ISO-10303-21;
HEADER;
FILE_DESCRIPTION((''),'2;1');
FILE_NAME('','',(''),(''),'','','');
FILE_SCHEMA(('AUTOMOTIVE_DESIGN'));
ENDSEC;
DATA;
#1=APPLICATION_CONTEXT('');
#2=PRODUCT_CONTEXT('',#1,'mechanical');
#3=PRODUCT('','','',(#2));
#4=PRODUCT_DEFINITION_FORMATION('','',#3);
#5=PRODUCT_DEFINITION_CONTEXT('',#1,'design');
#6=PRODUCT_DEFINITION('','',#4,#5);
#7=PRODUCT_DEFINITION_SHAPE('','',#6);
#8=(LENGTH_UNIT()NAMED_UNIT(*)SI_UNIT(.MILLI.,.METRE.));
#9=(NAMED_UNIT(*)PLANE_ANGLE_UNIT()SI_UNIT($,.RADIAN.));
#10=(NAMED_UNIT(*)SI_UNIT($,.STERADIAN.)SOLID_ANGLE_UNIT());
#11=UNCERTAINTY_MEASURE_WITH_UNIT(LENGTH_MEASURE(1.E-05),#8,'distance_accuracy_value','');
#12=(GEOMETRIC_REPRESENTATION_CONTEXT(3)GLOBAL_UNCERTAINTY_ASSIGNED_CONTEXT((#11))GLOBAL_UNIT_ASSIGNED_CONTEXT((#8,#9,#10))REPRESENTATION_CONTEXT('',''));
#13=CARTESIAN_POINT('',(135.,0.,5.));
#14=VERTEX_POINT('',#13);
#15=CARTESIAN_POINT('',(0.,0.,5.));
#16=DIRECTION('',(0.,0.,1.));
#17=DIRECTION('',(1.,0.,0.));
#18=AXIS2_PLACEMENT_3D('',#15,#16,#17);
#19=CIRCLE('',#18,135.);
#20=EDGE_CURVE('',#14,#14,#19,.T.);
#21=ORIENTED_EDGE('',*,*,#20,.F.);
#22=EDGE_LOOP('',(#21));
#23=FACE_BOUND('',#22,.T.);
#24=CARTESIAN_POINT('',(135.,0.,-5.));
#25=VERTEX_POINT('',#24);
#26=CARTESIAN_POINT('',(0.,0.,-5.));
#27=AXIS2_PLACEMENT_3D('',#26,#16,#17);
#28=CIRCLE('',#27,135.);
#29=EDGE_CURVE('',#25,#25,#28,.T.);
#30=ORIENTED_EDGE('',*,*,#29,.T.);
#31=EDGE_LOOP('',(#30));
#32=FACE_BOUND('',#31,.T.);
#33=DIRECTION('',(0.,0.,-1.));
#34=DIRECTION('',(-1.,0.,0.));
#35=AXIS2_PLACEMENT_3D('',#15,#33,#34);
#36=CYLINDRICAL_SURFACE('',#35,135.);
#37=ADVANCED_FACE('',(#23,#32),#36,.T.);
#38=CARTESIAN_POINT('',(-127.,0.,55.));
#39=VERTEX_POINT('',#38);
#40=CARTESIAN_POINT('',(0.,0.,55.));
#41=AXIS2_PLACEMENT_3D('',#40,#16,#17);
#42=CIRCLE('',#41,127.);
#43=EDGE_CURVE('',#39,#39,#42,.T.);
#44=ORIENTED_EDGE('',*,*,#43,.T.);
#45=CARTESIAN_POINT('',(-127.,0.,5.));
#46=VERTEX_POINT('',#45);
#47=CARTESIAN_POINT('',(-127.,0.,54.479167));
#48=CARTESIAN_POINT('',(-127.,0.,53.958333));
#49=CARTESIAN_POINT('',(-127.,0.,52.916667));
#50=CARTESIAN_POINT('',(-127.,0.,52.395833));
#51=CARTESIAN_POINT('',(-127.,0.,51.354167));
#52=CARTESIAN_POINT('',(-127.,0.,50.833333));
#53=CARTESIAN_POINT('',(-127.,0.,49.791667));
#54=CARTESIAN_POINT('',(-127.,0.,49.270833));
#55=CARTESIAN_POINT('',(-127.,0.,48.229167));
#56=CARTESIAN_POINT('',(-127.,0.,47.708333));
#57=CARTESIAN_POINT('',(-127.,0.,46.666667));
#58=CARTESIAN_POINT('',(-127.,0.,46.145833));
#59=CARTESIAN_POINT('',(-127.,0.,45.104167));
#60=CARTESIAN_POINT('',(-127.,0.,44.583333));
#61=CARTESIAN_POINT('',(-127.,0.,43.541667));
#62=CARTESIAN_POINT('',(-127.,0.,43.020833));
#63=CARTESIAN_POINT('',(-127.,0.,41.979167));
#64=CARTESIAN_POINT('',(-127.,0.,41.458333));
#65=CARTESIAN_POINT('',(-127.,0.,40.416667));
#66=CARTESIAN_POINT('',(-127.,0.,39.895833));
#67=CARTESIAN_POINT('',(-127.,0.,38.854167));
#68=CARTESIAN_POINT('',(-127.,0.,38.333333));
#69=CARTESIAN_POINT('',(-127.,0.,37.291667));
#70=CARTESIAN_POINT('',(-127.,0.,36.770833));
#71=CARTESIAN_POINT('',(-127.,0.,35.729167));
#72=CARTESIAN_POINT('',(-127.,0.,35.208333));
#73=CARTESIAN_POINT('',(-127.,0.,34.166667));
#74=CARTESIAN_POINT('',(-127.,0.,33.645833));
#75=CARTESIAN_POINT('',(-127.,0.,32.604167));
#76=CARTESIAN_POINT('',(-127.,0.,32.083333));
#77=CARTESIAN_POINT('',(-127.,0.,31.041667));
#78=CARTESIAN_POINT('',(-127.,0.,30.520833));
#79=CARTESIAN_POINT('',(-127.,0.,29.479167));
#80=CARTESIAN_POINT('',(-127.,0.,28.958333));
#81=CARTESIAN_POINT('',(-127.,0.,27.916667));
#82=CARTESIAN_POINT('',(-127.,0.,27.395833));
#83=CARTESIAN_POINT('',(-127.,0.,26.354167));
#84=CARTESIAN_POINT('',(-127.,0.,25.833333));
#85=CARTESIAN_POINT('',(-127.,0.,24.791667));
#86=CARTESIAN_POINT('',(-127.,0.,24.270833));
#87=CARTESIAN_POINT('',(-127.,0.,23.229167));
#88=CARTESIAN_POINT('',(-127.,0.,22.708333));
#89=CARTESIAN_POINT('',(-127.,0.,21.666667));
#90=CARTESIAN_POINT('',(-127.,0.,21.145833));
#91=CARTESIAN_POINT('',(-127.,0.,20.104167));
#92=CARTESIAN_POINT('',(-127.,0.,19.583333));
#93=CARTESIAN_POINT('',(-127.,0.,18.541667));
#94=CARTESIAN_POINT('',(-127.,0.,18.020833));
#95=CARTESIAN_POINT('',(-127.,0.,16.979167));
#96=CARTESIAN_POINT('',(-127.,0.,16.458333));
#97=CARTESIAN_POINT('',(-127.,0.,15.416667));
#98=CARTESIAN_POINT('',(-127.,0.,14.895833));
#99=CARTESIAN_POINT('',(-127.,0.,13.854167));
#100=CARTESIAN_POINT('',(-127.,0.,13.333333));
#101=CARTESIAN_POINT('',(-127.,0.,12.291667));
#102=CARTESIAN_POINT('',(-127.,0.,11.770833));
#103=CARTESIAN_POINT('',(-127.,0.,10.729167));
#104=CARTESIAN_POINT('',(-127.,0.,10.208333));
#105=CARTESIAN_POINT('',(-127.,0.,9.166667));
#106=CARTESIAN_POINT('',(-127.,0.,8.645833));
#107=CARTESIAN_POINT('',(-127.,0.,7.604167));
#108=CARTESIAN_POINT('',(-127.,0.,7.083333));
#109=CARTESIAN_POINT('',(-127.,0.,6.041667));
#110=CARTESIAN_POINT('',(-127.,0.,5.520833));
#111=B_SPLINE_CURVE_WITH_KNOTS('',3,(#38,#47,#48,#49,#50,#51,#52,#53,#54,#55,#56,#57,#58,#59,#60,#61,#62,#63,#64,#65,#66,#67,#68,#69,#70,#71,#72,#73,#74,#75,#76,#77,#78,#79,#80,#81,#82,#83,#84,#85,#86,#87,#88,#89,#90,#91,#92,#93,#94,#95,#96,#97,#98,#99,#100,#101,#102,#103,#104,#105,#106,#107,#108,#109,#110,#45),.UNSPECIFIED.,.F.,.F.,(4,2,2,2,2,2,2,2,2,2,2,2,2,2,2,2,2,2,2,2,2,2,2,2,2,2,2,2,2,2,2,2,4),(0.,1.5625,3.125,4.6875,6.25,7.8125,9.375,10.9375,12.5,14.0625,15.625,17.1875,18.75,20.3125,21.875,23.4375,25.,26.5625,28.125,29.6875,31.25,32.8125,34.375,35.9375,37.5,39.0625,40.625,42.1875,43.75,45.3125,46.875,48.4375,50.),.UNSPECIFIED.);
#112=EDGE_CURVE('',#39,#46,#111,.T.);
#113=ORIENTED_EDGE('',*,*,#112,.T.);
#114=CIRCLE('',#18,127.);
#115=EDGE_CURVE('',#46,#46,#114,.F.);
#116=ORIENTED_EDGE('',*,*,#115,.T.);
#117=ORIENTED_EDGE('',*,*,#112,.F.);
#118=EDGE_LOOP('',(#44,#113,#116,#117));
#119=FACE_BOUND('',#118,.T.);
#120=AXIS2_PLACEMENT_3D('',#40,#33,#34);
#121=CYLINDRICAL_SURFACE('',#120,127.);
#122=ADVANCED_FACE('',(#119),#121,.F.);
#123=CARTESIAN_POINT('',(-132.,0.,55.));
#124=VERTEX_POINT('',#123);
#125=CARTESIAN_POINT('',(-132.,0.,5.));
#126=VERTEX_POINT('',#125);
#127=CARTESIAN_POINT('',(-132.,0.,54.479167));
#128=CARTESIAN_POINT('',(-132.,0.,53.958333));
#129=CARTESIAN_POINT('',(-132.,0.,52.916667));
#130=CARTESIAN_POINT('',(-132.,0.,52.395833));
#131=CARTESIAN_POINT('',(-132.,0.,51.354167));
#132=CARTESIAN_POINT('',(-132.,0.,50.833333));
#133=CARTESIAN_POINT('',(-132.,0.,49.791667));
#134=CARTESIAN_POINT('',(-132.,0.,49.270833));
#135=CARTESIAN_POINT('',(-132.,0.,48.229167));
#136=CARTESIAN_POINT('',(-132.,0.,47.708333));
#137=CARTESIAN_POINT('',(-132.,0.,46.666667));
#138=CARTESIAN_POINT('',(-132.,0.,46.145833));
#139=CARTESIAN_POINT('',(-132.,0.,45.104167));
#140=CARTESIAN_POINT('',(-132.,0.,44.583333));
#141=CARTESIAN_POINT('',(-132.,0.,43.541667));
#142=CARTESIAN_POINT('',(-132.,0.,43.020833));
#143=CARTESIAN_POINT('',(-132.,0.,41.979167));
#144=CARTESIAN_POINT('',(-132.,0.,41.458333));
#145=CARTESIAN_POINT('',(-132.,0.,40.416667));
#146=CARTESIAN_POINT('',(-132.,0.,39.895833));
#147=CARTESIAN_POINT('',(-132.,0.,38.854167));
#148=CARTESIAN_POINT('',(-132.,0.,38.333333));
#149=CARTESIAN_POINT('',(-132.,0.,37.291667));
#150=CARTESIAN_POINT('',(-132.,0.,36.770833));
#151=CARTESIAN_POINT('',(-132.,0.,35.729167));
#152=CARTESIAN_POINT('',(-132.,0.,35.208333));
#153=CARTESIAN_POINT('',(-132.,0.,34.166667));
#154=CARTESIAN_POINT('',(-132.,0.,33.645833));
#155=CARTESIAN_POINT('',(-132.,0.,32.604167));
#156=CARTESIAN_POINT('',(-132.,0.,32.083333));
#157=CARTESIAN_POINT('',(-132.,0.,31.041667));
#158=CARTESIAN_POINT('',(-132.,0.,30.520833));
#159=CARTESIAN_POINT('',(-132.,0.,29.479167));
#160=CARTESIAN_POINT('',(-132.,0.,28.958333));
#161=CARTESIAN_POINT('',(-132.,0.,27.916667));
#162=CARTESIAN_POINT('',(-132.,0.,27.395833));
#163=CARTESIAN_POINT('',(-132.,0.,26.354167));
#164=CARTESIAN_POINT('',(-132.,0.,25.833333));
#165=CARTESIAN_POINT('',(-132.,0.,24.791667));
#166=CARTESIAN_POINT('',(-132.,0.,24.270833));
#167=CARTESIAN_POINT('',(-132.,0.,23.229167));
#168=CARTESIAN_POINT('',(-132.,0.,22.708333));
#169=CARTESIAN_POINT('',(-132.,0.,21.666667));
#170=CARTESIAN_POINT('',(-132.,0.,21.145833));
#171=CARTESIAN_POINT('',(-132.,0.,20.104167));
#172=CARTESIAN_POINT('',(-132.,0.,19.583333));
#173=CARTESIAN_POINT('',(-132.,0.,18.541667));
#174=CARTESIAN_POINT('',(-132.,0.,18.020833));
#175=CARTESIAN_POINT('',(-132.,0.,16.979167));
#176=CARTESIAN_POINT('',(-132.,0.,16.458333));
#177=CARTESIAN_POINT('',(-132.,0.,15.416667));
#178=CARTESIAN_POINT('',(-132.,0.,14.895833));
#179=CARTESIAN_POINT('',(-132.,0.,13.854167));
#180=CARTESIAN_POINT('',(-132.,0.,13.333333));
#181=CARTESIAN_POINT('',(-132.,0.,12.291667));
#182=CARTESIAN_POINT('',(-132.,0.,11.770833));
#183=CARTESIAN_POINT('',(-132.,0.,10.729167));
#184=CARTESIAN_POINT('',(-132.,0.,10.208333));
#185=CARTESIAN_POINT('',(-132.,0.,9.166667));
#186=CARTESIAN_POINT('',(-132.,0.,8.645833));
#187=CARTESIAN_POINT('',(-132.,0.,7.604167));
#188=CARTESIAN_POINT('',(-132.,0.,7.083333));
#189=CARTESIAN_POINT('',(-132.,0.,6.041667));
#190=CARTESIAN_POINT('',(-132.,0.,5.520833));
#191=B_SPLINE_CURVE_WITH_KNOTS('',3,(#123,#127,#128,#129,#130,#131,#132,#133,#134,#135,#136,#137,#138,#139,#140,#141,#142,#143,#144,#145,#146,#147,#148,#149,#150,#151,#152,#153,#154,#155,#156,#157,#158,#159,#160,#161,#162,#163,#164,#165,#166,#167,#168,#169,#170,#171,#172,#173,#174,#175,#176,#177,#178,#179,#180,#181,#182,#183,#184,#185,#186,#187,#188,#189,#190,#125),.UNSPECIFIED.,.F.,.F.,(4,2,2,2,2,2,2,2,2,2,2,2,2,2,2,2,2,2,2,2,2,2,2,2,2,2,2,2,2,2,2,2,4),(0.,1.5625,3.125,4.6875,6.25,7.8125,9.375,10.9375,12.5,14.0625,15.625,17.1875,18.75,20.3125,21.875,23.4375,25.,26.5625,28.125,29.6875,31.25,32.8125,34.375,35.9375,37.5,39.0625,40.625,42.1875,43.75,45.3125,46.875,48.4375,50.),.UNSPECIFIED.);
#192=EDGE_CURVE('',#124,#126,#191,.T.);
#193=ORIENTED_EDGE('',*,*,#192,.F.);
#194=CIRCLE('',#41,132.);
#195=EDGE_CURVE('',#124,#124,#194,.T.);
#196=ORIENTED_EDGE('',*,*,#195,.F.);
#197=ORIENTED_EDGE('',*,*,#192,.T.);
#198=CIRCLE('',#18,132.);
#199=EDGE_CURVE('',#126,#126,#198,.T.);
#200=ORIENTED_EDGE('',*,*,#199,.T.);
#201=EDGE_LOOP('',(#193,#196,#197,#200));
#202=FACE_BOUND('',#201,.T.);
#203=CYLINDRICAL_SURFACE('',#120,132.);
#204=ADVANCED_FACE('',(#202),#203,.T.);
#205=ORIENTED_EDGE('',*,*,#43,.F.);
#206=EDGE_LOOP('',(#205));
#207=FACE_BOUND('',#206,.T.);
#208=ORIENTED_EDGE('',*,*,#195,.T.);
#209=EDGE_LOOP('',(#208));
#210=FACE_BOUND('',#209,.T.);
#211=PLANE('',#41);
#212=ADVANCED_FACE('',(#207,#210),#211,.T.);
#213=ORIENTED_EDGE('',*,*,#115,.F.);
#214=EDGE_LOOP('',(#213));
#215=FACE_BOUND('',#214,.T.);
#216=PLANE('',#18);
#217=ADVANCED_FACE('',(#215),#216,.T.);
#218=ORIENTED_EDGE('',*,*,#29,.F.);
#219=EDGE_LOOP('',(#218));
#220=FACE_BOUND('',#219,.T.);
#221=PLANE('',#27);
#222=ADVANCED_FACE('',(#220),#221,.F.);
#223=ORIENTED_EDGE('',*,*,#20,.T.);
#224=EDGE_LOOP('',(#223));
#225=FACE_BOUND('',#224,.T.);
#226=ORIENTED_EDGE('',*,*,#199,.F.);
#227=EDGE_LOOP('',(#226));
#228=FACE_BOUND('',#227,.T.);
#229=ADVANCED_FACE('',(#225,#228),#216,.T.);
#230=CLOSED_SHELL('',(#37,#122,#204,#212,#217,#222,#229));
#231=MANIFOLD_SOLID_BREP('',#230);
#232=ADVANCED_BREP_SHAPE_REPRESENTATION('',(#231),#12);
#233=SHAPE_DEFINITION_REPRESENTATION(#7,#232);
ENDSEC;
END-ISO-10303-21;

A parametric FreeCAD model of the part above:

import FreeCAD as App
import Part
import Sketcher

V = App.Vector
Q = App.Units.Quantity

doc = App.newDocument("Part")
params = doc.addObject("Spreadsheet::Sheet", "Params")
for row, (alias, value) in enumerate([
    ("sketch1_diameter", "270 mm"),
    ("pad1_length", "10 mm"),
    ("sketch2_diameter", "264 mm"),
    ("sketch2_diameter2", "254 mm"),
    ("pad2_length", "50 mm"),
], start=1):
    params.set(f"A{row}", alias)
    params.set(f"B{row}", "=" + value)
    params.setAlias(f"B{row}", alias)

body = doc.addObject("PartDesign::Body", "Body")

# Sketch on XY plane
sketch1 = body.newObject("Sketcher::SketchObject", "Sketch")
sketch1.AttachmentSupport = (doc.getObject("XY_Plane"), [""])
sketch1.MapMode = "FlatFace"
sketch1.addGeometry(Part.Circle(V(0, 0, 0), V(0, 0, 1), 135), False)
sketch1.addConstraint([
    Sketcher.Constraint("Coincident", 0, 3, -1, 1),
    Sketcher.Constraint("Diameter", 0, Q("270 mm")),
])
sketch1.setExpression("Constraints[1]", "Params.sketch1_diameter")
pad1 = body.newObject("PartDesign::Pad", "Pad")
pad1.Profile = sketch1
pad1.setExpression("Length", "Params.pad1_length")
pad1.Midplane = True

# Sketch on XY plane
sketch2 = body.newObject("Sketcher::SketchObject", "Sketch001")
sketch2.AttachmentSupport = (doc.getObject("XY_Plane"), [""])
sketch2.MapMode = "FlatFace"
sketch2.AttachmentOffset = App.Placement(V(0, 0, 5), App.Rotation())
sketch2.addGeometry([
    Part.Circle(V(0, 0, 0), V(0, 0, 1), 132),
    Part.Circle(V(0, 0, 0), V(0, 0, 1), 127),
], False)
sketch2.addConstraint([
    Sketcher.Constraint("Coincident", 0, 3, -1, 1),
    Sketcher.Constraint("Coincident", 1, 3, -1, 1),
    Sketcher.Constraint("Diameter", 0, Q("264 mm")),
    Sketcher.Constraint("Diameter", 1, Q("254 mm")),
])
sketch2.setExpression("Constraints[2]", "Params.sketch2_diameter")
sketch2.setExpression("Constraints[3]", "Params.sketch2_diameter2")
pad2 = body.newObject("PartDesign::Pad", "Pad001")
pad2.Profile = sketch2
pad2.setExpression("Length", "Params.pad2_length")

doc.recompute()
